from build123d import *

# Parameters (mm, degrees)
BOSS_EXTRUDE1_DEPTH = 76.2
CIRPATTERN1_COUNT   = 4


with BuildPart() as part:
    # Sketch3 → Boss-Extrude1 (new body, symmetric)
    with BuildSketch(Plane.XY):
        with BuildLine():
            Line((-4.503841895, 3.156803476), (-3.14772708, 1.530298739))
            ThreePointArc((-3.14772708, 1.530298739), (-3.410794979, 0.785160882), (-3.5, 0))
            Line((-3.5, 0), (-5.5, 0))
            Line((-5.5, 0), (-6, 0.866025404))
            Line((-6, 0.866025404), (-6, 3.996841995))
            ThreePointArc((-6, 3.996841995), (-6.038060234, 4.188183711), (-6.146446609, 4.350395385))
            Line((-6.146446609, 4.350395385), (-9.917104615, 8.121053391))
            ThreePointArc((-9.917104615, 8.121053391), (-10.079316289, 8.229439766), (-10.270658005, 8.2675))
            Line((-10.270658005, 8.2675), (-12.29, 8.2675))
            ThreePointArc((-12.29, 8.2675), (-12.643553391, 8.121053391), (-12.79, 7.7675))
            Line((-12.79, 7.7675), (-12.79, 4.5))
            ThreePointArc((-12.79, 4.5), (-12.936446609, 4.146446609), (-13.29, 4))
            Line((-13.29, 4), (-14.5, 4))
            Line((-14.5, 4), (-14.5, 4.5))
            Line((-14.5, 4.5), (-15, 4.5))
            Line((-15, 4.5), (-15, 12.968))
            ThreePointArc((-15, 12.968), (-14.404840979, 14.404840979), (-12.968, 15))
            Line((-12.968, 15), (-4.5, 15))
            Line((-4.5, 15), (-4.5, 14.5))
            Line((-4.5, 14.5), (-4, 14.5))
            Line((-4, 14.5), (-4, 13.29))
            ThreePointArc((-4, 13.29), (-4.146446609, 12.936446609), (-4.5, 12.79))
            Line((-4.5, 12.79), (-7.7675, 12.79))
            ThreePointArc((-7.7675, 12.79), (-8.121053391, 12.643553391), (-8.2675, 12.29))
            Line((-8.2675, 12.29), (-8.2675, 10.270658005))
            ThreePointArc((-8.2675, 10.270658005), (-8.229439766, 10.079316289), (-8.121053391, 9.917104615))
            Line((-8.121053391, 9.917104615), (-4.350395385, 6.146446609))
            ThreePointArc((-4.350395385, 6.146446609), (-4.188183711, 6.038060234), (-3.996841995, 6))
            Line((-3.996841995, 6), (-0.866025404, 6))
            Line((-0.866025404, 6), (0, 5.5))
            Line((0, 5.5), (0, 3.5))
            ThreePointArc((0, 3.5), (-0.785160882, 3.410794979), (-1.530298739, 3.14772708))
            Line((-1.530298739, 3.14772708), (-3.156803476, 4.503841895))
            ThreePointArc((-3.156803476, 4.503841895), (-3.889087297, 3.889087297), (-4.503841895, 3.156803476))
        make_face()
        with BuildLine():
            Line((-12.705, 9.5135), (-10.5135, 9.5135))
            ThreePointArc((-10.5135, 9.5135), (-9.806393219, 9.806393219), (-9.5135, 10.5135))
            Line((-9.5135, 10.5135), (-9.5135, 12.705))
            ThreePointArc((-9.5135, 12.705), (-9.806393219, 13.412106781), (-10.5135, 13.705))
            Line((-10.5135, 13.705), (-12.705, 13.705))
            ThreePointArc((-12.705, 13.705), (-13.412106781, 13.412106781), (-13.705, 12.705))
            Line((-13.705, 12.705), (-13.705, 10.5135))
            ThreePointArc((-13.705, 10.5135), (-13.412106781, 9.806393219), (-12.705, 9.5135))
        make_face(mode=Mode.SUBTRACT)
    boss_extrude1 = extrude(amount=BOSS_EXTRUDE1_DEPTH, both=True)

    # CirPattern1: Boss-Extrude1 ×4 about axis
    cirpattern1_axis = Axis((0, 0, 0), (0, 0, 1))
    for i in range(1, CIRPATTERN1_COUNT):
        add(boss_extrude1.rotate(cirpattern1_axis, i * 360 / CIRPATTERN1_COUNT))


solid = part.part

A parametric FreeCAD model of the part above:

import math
import FreeCAD as App
import Part
import Sketcher
from FreeCAD import Vector
Q = App.Units.Quantity

doc = App.newDocument("Part")
body = doc.addObject("PartDesign::Body", "Body")

sketch1 = body.newObject("Sketcher::SketchObject", "Sketch")
sketch1.AttachmentSupport = (doc.getObject("XY_Plane"), [""])
sketch1.MapMode = "FlatFace"
sketch1.addGeometry([
    Part.LineSegment(Vector(-3.15, 1.53, 0), Vector(-4.5, 3.16, 0)),
    Part.ArcOfCircle(Part.Circle(Vector(0, 0, 0), Vector(0, 0, 1), 5.5), math.radians(125.03), math.radians(144.97)),
    Part.LineSegment(Vector(-3.16, 4.5, 0), Vector(-1.53, 3.15, 0)),
    Part.ArcOfCircle(Part.Circle(Vector(0, 0, 0), Vector(0, 0, 1), 3.5), math.radians(90), math.radians(116)),
    Part.LineSegment(Vector(0, 3.5, 0), Vector(0, 5.5, 0)),
    Part.LineSegment(Vector(0, 5.5, 0), Vector(-0.87, 6, 0)),
    Part.LineSegment(Vector(-0.87, 6, 0), Vector(-4, 6, 0)),
    Part.ArcOfCircle(Part.Circle(Vector(-4, 6.5, 0), Vector(0, 0, 1), 0.5), math.radians(-135), math.radians(-90)),
    Part.LineSegment(Vector(-4.35, 6.15, 0), Vector(-8.12, 9.92, 0)),
    Part.ArcOfCircle(Part.Circle(Vector(-7.77, 10.27, 0), Vector(0, 0, 1), 0.5), math.radians(-180), math.radians(-135)),
    Part.LineSegment(Vector(-8.27, 10.27, 0), Vector(-8.27, 12.29, 0)),
    Part.ArcOfCircle(Part.Circle(Vector(-7.77, 12.29, 0), Vector(0, 0, 1), 0.5), math.radians(90), math.radians(180)),
    Part.LineSegment(Vector(-7.77, 12.79, 0), Vector(-4.5, 12.79, 0)),
    Part.ArcOfCircle(Part.Circle(Vector(-4.5, 13.29, 0), Vector(0, 0, 1), 0.5), math.radians(-90), math.radians(0)),
    Part.LineSegment(Vector(-4, 13.29, 0), Vector(-4, 14.5, 0)),
    Part.LineSegment(Vector(-4, 14.5, 0), Vector(-4.5, 14.5, 0)),
    Part.LineSegment(Vector(-4.5, 14.5, 0), Vector(-4.5, 15, 0)),
    Part.LineSegment(Vector(-4.5, 15, 0), Vector(-12.97, 15, 0)),
    Part.ArcOfCircle(Part.Circle(Vector(-12.97, 12.97, 0), Vector(0, 0, 1), 2.03), math.radians(90), math.radians(180)),
    Part.LineSegment(Vector(-15, 12.97, 0), Vector(-15, 4.5, 0)),
    Part.LineSegment(Vector(-15, 4.5, 0), Vector(-14.5, 4.5, 0)),
    Part.LineSegment(Vector(-14.5, 4.5, 0), Vector(-14.5, 4, 0)),
    Part.LineSegment(Vector(-14.5, 4, 0), Vector(-13.29, 4, 0)),
    Part.ArcOfCircle(Part.Circle(Vector(-13.29, 4.5, 0), Vector(0, 0, 1), 0.5), math.radians(-90), math.radians(0)),
    Part.LineSegment(Vector(-12.79, 4.5, 0), Vector(-12.79, 7.77, 0)),
    Part.ArcOfCircle(Part.Circle(Vector(-12.29, 7.77, 0), Vector(0, 0, 1), 0.5), math.radians(90), math.radians(180)),
    Part.LineSegment(Vector(-12.29, 8.27, 0), Vector(-10.27, 8.27, 0)),
    Part.ArcOfCircle(Part.Circle(Vector(-10.27, 7.77, 0), Vector(0, 0, 1), 0.5), math.radians(45), math.radians(90)),
    Part.LineSegment(Vector(-9.92, 8.12, 0), Vector(-6.15, 4.35, 0)),
    Part.ArcOfCircle(Part.Circle(Vector(-6.5, 4, 0), Vector(0, 0, 1), 0.5), math.radians(0), math.radians(45)),
    Part.LineSegment(Vector(-6, 4, 0), Vector(-6, 0.87, 0)),
    Part.LineSegment(Vector(-6, 0.87, 0), Vector(-5.5, 0, 0)),
    Part.LineSegment(Vector(-5.5, 0, 0), Vector(-3.5, 0, 0)),
    Part.ArcOfCircle(Part.Circle(Vector(0, 0, 0), Vector(0, 0, 1), 3.5), math.radians(154), math.radians(180)),
    Part.ArcOfCircle(Part.Circle(Vector(-12.7, 10.51, 0), Vector(0, 0, 1), 1), math.radians(-180), math.radians(-90)),
    Part.LineSegment(Vector(-13.71, 10.51, 0), Vector(-13.71, 12.71, 0)),
    Part.ArcOfCircle(Part.Circle(Vector(-12.7, 12.7, 0), Vector(0, 0, 1), 1), math.radians(90), math.radians(180)),
    Part.LineSegment(Vector(-12.71, 13.71, 0), Vector(-10.51, 13.71, 0)),
    Part.ArcOfCircle(Part.Circle(Vector(-10.51, 12.7, 0), Vector(0, 0, 1), 1), math.radians(0), math.radians(90)),
    Part.LineSegment(Vector(-9.51, 12.71, 0), Vector(-9.51, 10.51, 0)),
    Part.ArcOfCircle(Part.Circle(Vector(-10.51, 10.51, 0), Vector(0, 0, 1), 1), math.radians(-90), math.radians(0)),
    Part.LineSegment(Vector(-10.51, 9.51, 0), Vector(-12.71, 9.51, 0)),
], False)
sketch1.addConstraint([
    Sketcher.Constraint("Coincident", 0, 2, 1, 2),
    Sketcher.Constraint("Coincident", 1, 1, 2, 1),
    Sketcher.Constraint("Coincident", 2, 2, 3, 2),
    Sketcher.Constraint("Coincident", 3, 1, 4, 1),
    Sketcher.Constraint("Coincident", 4, 2, 5, 1),
    Sketcher.Constraint("Coincident", 5, 2, 6, 1),
    Sketcher.Constraint("Tangent", 6, 2, 7, 2),
    Sketcher.Constraint("Tangent", 7, 1, 8, 1),
    Sketcher.Constraint("Tangent", 8, 2, 9, 2),
    Sketcher.Constraint("Tangent", 9, 1, 10, 1),
    Sketcher.Constraint("Tangent", 10, 2, 11, 2),
    Sketcher.Constraint("Tangent", 11, 1, 12, 1),
    Sketcher.Constraint("Tangent", 12, 2, 13, 1),
    Sketcher.Constraint("Tangent", 13, 2, 14, 1),
    Sketcher.Constraint("Coincident", 14, 2, 15, 1),
    Sketcher.Constraint("Coincident", 15, 2, 16, 1),
    Sketcher.Constraint("Coincident", 16, 2, 17, 1),
    Sketcher.Constraint("Tangent", 17, 2, 18, 1),
    Sketcher.Constraint("Tangent", 18, 2, 19, 1),
    Sketcher.Constraint("Coincident", 19, 2, 20, 1),
    Sketcher.Constraint("Coincident", 20, 2, 21, 1),
    Sketcher.Constraint("Coincident", 21, 2, 22, 1),
    Sketcher.Constraint("Tangent", 22, 2, 23, 1),
    Sketcher.Constraint("Tangent", 23, 2, 24, 1),
    Sketcher.Constraint("Tangent", 24, 2, 25, 2),
    Sketcher.Constraint("Tangent", 25, 1, 26, 1),
    Sketcher.Constraint("Tangent", 26, 2, 27, 2),
    Sketcher.Constraint("Tangent", 27, 1, 28, 1),
    Sketcher.Constraint("Tangent", 28, 2, 29, 2),
    Sketcher.Constraint("Tangent", 29, 1, 30, 1),
    Sketcher.Constraint("Coincident", 30, 2, 31, 1),
    Sketcher.Constraint("Coincident", 31, 2, 32, 1),
    Sketcher.Constraint("Coincident", 32, 2, 33, 2),
    Sketcher.Constraint("Coincident", 33, 1, 0, 1),
    Sketcher.Constraint("Tangent", 34, 1, 35, 1),
    Sketcher.Constraint("Tangent", 35, 2, 36, 2),
    Sketcher.Constraint("Tangent", 36, 1, 37, 1),
    Sketcher.Constraint("Tangent", 37, 2, 38, 2),
    Sketcher.Constraint("Tangent", 38, 1, 39, 1),
    Sketcher.Constraint("Tangent", 39, 2, 40, 2),
    Sketcher.Constraint("Tangent", 40, 1, 41, 1),
    Sketcher.Constraint("Tangent", 41, 2, 34, 2),
    Sketcher.Constraint("Vertical", 4),
    Sketcher.Constraint("Horizontal", 6),
    Sketcher.Constraint("Vertical", 10),
    Sketcher.Constraint("Horizontal", 12),
    Sketcher.Constraint("Vertical", 14),
    Sketcher.Constraint("Horizontal", 15),
    Sketcher.Constraint("Vertical", 16),
    Sketcher.Constraint("Horizontal", 17),
    Sketcher.Constraint("Vertical", 19),
    Sketcher.Constraint("Horizontal", 20),
    Sketcher.Constraint("Vertical", 21),
    Sketcher.Constraint("Horizontal", 22),
    Sketcher.Constraint("Vertical", 24),
    Sketcher.Constraint("Horizontal", 26),
    Sketcher.Constraint("Vertical", 30),
    Sketcher.Constraint("Horizontal", 32),
    Sketcher.Constraint("Vertical", 35),
    Sketcher.Constraint("Horizontal", 37),
    Sketcher.Constraint("Vertical", 39),
    Sketcher.Constraint("Horizontal", 41),
    Sketcher.Constraint("Coincident", 1, 3, -1, 1),
    Sketcher.Constraint("Coincident", 3, 3, -1, 1),
    Sketcher.Constraint("Coincident", 33, 3, -1, 1),
    Sketcher.Constraint("Equal", 7, 9),
    Sketcher.Constraint("Equal", 9, 11),
    Sketcher.Constraint("Equal", 11, 13),
    Sketcher.Constraint("Equal", 13, 23),
    Sketcher.Constraint("Equal", 23, 25),
    Sketcher.Constraint("Equal", 25, 27),
    Sketcher.Constraint("Equal", 27, 29),
    Sketcher.Constraint("Equal", 3, 33),
    Sketcher.Constraint("Equal", 34, 36),
    Sketcher.Constraint("Equal", 36, 38),
    Sketcher.Constraint("Equal", 38, 40),
    Sketcher.Constraint("PointOnObject", 3, 1, -2),
    Sketcher.Constraint("PointOnObject", 31, 2, -1),
    Sketcher.Constraint("Parallel", 8, 28),
    Sketcher.Constraint("Horizontal", 23, 3, 19, 2),
    Sketcher.Constraint("Vertical", 12, 2, 15, 2),
    Sketcher.Constraint("Equal", 15, 20),
    Sketcher.Constraint("Equal", 32, 4),
    Sketcher.Constraint("Equal", 26, 10),
    Sketcher.Constraint("Equal", 22, 14),
    Sketcher.Constraint("Equal", 20, 16),
    Sketcher.Constraint("Equal", 17, 19),
    Sketcher.Constraint("Equal", 12, 24),
    Sketcher.Constraint("Equal", 6, 30),
    Sketcher.Constraint("Equal", 41, 35),
    Sketcher.Constraint("Equal", 0, 2),
    Sketcher.Constraint("Equal", 8, 28),
    Sketcher.Constraint("Equal", 5, 31),
    Sketcher.Constraint("Radius", 34, 1.0),
    Sketcher.Constraint("Radius", 1, 5.5),
    Sketcher.Constraint("Radius", 3, 3.5),
    Sketcher.Constraint("Radius", 7, 0.5),
    Sketcher.Constraint("DistanceX", 32, 1, 32, 2, 2.0),
    Sketcher.Constraint("Angle", 5, Q("150 deg")),
    Sketcher.Constraint("Angle", 8, Q("135 deg")),
    Sketcher.Constraint("Distance", 5, 1.0),
    Sketcher.Constraint("DistanceX", 13, 2, -1, 1, 4.0),
    Sketcher.Constraint("DistanceY", -1, 1, 16, 2, 15.0),
    Sketcher.Constraint("Radius", 18, 2.032),
    Sketcher.Constraint("DistanceX", 22, 1, 22, 2, 1.21),
    Sketcher.Constraint("Angle", 0, Q("129.82 deg")),
    Sketcher.Constraint("Angle", 2, Q("-39.82 deg")),
    Sketcher.Constraint("DistanceX", 12, 1, 12, 2, 3.2675),
    Sketcher.Constraint("DistanceX", 37, 1, 37, 2, 2.1915),
    Sketcher.Constraint("DistanceX", 34, 3, -1, 1, 12.705),
    Sketcher.Constraint("DistanceY", -1, 1, 36, 3, 12.705),
    Sketcher.Constraint("DistanceX", 0, 2, 7, 3, 0.507),
    Sketcher.Constraint("DistanceX", 26, 1, 26, 2, 2.019342),
])
pad1 = body.newObject("PartDesign::Pad", "Pad")
pad1.Profile = sketch1
pad1.Length = 152.4
pad1.Midplane = True
doc.recompute()

polarpattern = body.newObject("PartDesign::PolarPattern", "PolarPattern")
polarpattern.Originals = [pad1]
polarpattern.Axis = (doc.getObject("Z_Axis"), [""])
polarpattern.Angle = 360
polarpattern.Occurrences = 4
body.Tip = polarpattern

doc.recompute()
